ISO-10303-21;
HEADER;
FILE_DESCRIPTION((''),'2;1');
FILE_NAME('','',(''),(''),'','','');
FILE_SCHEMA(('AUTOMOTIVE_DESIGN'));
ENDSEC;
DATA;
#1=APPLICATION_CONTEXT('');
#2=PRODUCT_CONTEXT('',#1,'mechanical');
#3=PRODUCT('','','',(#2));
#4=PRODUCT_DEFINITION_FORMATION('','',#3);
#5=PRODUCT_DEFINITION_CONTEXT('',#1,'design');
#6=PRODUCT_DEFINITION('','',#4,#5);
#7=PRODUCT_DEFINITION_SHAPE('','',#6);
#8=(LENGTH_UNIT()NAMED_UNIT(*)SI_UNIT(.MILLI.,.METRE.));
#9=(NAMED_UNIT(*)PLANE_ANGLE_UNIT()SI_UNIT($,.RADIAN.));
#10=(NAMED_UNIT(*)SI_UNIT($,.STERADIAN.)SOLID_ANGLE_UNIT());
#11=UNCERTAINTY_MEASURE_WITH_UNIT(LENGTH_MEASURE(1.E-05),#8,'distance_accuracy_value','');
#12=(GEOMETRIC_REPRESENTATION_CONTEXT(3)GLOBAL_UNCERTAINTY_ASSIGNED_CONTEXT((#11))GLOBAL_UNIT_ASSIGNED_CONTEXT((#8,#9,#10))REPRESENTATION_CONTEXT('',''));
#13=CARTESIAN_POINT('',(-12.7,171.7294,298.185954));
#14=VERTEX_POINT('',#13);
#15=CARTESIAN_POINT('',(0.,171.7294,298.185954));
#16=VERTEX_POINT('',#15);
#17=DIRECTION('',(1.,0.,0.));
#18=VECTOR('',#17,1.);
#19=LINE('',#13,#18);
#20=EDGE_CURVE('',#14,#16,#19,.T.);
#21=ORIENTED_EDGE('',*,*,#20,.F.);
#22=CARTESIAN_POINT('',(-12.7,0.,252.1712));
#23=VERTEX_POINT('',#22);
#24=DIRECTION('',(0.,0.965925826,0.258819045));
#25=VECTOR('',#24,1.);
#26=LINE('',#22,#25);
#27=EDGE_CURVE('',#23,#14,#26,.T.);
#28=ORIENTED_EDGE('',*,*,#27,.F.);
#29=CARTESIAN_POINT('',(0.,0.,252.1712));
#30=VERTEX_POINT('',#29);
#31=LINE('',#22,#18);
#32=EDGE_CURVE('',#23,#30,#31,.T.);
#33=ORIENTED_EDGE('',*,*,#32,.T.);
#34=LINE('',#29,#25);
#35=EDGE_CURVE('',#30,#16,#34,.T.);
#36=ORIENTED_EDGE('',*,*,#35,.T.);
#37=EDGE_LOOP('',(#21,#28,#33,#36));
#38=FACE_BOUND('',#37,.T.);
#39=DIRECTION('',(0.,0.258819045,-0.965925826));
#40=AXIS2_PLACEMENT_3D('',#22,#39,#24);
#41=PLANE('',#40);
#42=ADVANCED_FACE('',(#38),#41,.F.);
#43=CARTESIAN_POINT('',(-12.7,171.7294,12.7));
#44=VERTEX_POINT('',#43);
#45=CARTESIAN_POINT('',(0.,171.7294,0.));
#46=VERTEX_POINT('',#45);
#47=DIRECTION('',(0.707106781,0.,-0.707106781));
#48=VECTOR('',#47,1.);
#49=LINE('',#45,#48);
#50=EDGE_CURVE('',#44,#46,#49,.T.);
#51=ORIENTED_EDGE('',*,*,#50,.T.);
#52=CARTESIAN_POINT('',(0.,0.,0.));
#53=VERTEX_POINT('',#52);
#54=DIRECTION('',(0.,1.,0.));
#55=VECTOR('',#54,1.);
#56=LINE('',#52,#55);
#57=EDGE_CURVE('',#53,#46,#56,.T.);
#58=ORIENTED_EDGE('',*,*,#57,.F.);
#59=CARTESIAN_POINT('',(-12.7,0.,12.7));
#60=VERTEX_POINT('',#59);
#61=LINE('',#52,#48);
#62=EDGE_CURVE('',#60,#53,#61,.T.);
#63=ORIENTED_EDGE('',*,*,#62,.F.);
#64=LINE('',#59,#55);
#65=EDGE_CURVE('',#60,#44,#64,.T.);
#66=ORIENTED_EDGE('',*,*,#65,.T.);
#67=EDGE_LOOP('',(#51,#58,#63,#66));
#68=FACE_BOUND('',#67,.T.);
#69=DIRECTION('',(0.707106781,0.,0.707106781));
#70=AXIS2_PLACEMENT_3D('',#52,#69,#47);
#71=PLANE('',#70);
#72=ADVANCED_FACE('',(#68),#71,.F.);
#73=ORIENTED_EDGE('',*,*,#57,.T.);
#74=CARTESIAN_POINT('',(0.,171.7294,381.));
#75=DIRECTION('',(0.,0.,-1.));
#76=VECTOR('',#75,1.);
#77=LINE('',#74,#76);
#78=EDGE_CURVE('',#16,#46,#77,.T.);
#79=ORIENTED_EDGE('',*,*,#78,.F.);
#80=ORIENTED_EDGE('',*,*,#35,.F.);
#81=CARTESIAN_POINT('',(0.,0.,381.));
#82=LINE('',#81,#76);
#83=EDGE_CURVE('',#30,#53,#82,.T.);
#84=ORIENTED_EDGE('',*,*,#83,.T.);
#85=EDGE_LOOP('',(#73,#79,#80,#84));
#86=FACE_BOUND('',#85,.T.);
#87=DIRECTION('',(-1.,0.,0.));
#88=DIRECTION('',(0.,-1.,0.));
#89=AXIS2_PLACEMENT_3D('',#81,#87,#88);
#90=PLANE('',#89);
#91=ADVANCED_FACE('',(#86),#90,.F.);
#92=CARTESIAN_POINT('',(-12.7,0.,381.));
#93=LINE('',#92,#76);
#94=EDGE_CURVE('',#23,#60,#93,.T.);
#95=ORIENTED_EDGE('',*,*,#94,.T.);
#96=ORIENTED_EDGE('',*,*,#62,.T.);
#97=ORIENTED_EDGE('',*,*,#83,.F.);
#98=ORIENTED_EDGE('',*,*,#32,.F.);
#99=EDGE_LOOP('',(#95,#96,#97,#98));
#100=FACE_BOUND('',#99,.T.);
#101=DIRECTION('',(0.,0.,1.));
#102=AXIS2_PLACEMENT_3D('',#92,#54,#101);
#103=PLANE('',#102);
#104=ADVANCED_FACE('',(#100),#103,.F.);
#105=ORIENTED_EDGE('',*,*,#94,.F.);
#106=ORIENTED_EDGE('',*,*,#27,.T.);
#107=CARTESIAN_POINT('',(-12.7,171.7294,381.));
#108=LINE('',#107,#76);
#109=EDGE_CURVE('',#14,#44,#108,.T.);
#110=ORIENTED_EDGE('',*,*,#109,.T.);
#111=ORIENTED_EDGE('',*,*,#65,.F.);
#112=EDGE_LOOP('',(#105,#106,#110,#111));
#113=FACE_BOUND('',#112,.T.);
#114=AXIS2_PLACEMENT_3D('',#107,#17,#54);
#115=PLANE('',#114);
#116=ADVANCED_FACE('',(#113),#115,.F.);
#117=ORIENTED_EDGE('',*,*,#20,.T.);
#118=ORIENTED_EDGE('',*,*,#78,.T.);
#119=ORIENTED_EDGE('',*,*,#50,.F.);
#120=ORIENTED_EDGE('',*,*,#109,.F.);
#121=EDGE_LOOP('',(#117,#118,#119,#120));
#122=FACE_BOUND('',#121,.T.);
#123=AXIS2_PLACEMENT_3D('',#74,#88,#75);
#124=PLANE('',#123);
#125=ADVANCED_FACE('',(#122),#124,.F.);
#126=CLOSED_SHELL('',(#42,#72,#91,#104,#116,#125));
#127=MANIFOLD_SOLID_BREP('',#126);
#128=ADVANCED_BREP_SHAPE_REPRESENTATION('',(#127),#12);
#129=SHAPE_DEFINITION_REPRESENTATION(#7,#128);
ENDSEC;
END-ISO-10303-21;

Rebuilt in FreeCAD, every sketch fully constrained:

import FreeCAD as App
import Part
import Sketcher

V = App.Vector
Q = App.Units.Quantity

doc = App.newDocument("Part")
params = doc.addObject("Spreadsheet::Sheet", "Params")
for row, (alias, value) in enumerate([
    ("sketch1_width", "0.5 in"),
    ("sketch1_height", "6.761 in"),
    ("pad1_length", "15 in"),
    ("sketch2_width", "6.761 in"),
    ("sketch2_height", "5.072 in"),
    ("sketch3_width", "0.5 in"),
], start=1):
    params.set(f"A{row}", alias)
    params.set(f"B{row}", "=" + value)
    params.setAlias(f"B{row}", alias)

body = doc.addObject("PartDesign::Body", "Body")

# Sketch on XY plane
sketch1 = doc.addObject("Sketcher::SketchObject", "Sketch")
body.addObject(sketch1)
sketch1.AttachmentSupport = (doc.XY_Plane, [""])
sketch1.MapMode = "FlatFace"
sketch1.addGeometry(Part.LineSegment(V(-13, 172, 0), V(-13, 0, 0)), False)
sketch1.addGeometry(Part.LineSegment(V(-13, 0, 0), V(0, 0, 0)), False)
sketch1.addGeometry(Part.LineSegment(V(0, 0, 0), V(0, 172, 0)), False)
sketch1.addGeometry(Part.LineSegment(V(0, 172, 0), V(-13, 172, 0)), False)
sketch1.addConstraint(Sketcher.Constraint("Coincident", 0, 2, 1, 1))
sketch1.addConstraint(Sketcher.Constraint("Coincident", 1, 2, 2, 1))
sketch1.addConstraint(Sketcher.Constraint("Coincident", 2, 2, 3, 1))
sketch1.addConstraint(Sketcher.Constraint("Coincident", 3, 2, 0, 1))
sketch1.addConstraint(Sketcher.Constraint("Vertical", 0))
sketch1.addConstraint(Sketcher.Constraint("Horizontal", 1))
sketch1.addConstraint(Sketcher.Constraint("Vertical", 2))
sketch1.addConstraint(Sketcher.Constraint("Horizontal", 3))
sketch1.addConstraint(Sketcher.Constraint("Coincident", 1, 2, -1, 1))
sketch1.addConstraint(Sketcher.Constraint("DistanceX", 1, 1, 1, 2, Q("0.5 in")))
sketch1.addConstraint(Sketcher.Constraint("DistanceY", 0, 2, 0, 1, Q("6.761 in")))
sketch1.setExpression("Constraints[9]", "Params.sketch1_width")
sketch1.setExpression("Constraints[10]", "Params.sketch1_height")
pad1 = doc.addObject("PartDesign::Pad", "Pad")
body.addObject(pad1)
pad1.Profile = sketch1
pad1.setExpression("Length", "Params.pad1_length")

# Sketch on YZ plane
sketch2 = doc.addObject("Sketcher::SketchObject", "Sketch001")
body.addObject(sketch2)
sketch2.AttachmentSupport = (doc.YZ_Plane, [""])
sketch2.MapMode = "FlatFace"
sketch2.addGeometry(Part.LineSegment(V(0, 252, 0), V(172, 298, 0)), False)
sketch2.addGeometry(Part.LineSegment(V(172, 298, 0), V(172, 381, 0)), False)
sketch2.addGeometry(Part.LineSegment(V(172, 381, 0), V(0, 381, 0)), False)
sketch2.addGeometry(Part.LineSegment(V(0, 381, 0), V(0, 252, 0)), False)
sketch2.addConstraint(Sketcher.Constraint("Coincident", 0, 2, 1, 1))
sketch2.addConstraint(Sketcher.Constraint("Coincident", 1, 2, 2, 1))
sketch2.addConstraint(Sketcher.Constraint("Coincident", 2, 2, 3, 1))
sketch2.addConstraint(Sketcher.Constraint("Coincident", 3, 2, 0, 1))
sketch2.addConstraint(Sketcher.Constraint("Vertical", 1))
sketch2.addConstraint(Sketcher.Constraint("Horizontal", 2))
sketch2.addConstraint(Sketcher.Constraint("Vertical", 3))
sketch2.addConstraint(Sketcher.Constraint("PointOnObject", 2, 2, -2))
sketch2.addConstraint(Sketcher.Constraint("DistanceY", -1, 1, 1, 2, Q("15 in")))
sketch2.addConstraint(Sketcher.Constraint("Angle", 0, Q("15 deg")))
sketch2.addConstraint(Sketcher.Constraint("DistanceX", 2, 2, 2, 1, Q("6.761 in")))
sketch2.addConstraint(Sketcher.Constraint("DistanceY", 3, 2, 3, 1, Q("5.072 in")))
sketch2.setExpression("Constraints[10]", "Params.sketch2_width")
sketch2.setExpression("Constraints[11]", "Params.sketch2_height")
pocket1 = doc.addObject("PartDesign::Pocket", "Pocket")
body.addObject(pocket1)
pocket1.Profile = sketch2
pocket1.Type = "ThroughAll"

# Sketch on XZ plane
sketch3 = doc.addObject("Sketcher::SketchObject", "Sketch002")
body.addObject(sketch3)
sketch3.AttachmentSupport = (doc.XZ_Plane, [""])
sketch3.MapMode = "FlatFace"
sketch3.AttachmentOffset = App.Placement(V(0, 0, -6.761 * 25.4), App.Rotation())
sketch3.addGeometry(Part.LineSegment(V(-13, 13, 0), V(0, 0, 0)), False)
sketch3.addGeometry(Part.LineSegment(V(0, 0, 0), V(-13, 0, 0)), False)
sketch3.addGeometry(Part.LineSegment(V(-13, 0, 0), V(-13, 13, 0)), False)
sketch3.addConstraint(Sketcher.Constraint("Coincident", 0, 2, 1, 1))
sketch3.addConstraint(Sketcher.Constraint("Coincident", 1, 2, 2, 1))
sketch3.addConstraint(Sketcher.Constraint("Coincident", 2, 2, 0, 1))
sketch3.addConstraint(Sketcher.Constraint("Horizontal", 1))
sketch3.addConstraint(Sketcher.Constraint("Vertical", 2))
sketch3.addConstraint(Sketcher.Constraint("Coincident", 0, 2, -1, 1))
sketch3.addConstraint(Sketcher.Constraint("Equal", 1, 2))
sketch3.addConstraint(Sketcher.Constraint("DistanceX", 1, 2, 1, 1, Q("0.5 in")))
sketch3.setExpression("Constraints[7]", "Params.sketch3_width")
pocket2 = doc.addObject("PartDesign::Pocket", "Pocket001")
body.addObject(pocket2)
pocket2.Profile = sketch3
pocket2.Type = "ThroughAll"
pocket2.Reversed = True

doc.recompute()
